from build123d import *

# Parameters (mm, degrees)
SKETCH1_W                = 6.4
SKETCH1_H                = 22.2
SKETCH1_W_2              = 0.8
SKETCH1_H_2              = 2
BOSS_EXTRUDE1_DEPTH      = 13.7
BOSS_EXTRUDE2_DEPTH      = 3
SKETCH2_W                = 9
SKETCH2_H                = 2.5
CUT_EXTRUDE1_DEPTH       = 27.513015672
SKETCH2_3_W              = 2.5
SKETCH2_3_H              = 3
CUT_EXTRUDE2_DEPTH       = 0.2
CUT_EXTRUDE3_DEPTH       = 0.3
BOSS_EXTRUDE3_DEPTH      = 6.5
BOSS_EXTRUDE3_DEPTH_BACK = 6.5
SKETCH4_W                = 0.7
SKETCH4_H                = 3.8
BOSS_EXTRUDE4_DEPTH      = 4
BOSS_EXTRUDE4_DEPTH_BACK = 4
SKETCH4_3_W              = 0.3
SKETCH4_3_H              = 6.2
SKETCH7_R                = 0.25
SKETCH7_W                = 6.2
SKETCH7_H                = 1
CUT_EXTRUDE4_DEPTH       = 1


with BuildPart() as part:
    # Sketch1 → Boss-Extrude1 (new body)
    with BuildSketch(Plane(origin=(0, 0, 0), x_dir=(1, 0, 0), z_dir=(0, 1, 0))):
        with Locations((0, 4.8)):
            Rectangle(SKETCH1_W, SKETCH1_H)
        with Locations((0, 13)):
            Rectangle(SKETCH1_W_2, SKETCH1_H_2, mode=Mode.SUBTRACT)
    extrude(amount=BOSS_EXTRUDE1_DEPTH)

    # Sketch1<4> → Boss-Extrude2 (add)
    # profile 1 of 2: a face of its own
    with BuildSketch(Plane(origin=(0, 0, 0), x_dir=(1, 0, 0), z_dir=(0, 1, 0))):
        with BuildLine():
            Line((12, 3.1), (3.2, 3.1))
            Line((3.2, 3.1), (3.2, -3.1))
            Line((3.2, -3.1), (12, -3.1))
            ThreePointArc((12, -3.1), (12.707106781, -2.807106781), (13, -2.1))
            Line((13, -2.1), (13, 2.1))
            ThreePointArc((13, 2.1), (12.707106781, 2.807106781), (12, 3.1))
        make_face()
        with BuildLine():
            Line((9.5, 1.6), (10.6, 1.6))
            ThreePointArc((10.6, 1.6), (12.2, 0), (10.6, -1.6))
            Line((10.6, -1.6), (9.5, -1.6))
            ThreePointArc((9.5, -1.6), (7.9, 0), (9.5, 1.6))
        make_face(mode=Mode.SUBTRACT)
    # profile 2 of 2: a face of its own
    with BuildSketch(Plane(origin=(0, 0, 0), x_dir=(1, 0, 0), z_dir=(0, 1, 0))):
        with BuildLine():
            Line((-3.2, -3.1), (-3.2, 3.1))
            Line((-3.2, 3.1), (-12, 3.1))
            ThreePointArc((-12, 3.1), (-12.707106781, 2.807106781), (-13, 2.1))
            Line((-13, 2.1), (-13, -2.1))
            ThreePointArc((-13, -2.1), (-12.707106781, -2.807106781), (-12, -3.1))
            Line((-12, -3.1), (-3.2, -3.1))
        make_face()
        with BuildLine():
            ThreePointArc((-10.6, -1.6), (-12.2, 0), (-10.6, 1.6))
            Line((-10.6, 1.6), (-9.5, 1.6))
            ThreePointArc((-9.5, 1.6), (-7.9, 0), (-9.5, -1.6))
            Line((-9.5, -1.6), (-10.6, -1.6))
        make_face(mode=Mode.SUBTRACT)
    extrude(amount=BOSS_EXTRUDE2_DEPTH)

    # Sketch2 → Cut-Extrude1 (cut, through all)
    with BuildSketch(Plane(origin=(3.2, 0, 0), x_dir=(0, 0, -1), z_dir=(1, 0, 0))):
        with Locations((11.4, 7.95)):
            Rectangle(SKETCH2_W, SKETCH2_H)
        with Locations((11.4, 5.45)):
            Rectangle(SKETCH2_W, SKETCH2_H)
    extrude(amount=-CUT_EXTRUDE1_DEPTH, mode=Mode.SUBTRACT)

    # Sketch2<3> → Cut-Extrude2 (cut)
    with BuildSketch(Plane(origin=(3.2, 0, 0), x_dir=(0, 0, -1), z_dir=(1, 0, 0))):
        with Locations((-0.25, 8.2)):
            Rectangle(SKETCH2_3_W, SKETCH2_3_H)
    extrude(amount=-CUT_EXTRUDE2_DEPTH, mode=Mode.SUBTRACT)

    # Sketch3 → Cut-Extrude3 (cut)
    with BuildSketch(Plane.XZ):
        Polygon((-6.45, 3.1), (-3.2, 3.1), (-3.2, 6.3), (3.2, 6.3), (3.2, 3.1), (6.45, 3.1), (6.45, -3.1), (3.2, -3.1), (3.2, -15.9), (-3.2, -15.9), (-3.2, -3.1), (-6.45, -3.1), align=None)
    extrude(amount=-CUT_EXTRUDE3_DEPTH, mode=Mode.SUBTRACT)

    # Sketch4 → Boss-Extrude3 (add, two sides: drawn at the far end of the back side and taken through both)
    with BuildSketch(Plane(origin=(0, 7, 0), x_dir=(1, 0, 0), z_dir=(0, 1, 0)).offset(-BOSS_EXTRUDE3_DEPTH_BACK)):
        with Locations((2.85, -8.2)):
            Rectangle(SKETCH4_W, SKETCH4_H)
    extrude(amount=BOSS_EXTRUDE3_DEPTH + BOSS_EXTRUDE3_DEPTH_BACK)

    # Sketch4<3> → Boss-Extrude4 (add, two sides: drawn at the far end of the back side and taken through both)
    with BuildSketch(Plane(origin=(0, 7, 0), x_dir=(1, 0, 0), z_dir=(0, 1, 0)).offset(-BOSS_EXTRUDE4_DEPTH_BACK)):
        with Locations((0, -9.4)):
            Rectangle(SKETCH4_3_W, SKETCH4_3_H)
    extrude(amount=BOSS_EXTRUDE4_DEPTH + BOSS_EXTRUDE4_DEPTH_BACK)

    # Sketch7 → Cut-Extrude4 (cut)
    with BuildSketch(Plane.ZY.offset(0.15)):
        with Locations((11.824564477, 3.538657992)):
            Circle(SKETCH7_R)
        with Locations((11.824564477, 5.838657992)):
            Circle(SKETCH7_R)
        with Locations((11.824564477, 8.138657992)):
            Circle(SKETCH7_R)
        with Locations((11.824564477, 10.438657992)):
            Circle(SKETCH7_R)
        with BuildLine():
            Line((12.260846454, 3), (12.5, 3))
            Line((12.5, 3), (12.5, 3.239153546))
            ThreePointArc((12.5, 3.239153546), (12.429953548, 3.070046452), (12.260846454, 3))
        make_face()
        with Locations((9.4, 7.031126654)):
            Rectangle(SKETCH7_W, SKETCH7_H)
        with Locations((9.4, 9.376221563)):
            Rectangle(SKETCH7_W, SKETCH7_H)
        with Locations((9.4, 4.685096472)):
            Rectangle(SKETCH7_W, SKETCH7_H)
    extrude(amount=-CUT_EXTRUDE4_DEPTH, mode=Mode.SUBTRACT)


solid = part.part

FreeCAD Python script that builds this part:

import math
import FreeCAD as App
import Part
import Sketcher

V = App.Vector


def add_polygon(sketch, points):
    """Adds a closed chain of lines whose ends are joined by coincident constraints."""
    first, n = sketch.GeometryCount, len(points)
    for a, b in zip(points, points[1:] + points[:1]):
        sketch.addGeometry(Part.LineSegment(App.Vector(*a, 0), App.Vector(*b, 0)), False)
    for i in range(n):
        sketch.addConstraint(Sketcher.Constraint("Coincident", first + i, 2, first + (i + 1) % n, 1))

doc = App.newDocument("Part")
body = doc.addObject("PartDesign::Body", "Body")

sketch1 = body.newObject("Sketcher::SketchObject", "Sketch")
sketch1.AttachmentSupport = (doc.getObject("XZ_Plane"), [""])
sketch1.MapMode = "FlatFace"
add_polygon(sketch1, [(-3.2, -15.9), (-3.2, 6.3), (3.2, 6.3), (3.2, -15.9)])
add_polygon(sketch1, [(0.4, -12), (-0.4, -12), (-0.4, -14), (0.4, -14)])
sketch1.addConstraint(Sketcher.Constraint("Vertical", 0))
sketch1.addConstraint(Sketcher.Constraint("Horizontal", 1))
sketch1.addConstraint(Sketcher.Constraint("Vertical", 2))
sketch1.addConstraint(Sketcher.Constraint("Horizontal", 3))
sketch1.addConstraint(Sketcher.Constraint("Horizontal", 4))
sketch1.addConstraint(Sketcher.Constraint("Vertical", 5))
sketch1.addConstraint(Sketcher.Constraint("Horizontal", 6))
sketch1.addConstraint(Sketcher.Constraint("Vertical", 7))
sketch1.addConstraint(Sketcher.Constraint("DistanceY", 5, 2, 5, 1, 2.0))
sketch1.addConstraint(Sketcher.Constraint("DistanceX", 1, 1, 1, 2, 6.4))
sketch1.addConstraint(Sketcher.Constraint("DistanceX", 4, 2, 4, 1, 0.8))
sketch1.addConstraint(Sketcher.Constraint("DistanceY", 0, 1, 0, 2, 22.2))
sketch1.addConstraint(Sketcher.Constraint("DistanceY", 4, 2, -1, 1, 12.0))
sketch1.addConstraint(Sketcher.Constraint("DistanceX", 0, 2, -1, 1, 3.2))
sketch1.addConstraint(Sketcher.Constraint("DistanceY", -1, 1, 0, 2, 6.3))
sketch1.addConstraint(Sketcher.Constraint("DistanceX", 4, 2, -1, 1, 0.4))
pad1 = body.newObject("PartDesign::Pad", "Pad")
pad1.Profile = sketch1
pad1.Length = 13.7
pad1.Reversed = True

sketch2 = body.newObject("Sketcher::SketchObject", "Sketch001")
sketch2.AttachmentSupport = (doc.getObject("XZ_Plane"), [""])
sketch2.MapMode = "FlatFace"
sketch2.addGeometry(Part.LineSegment(V(12, -3.1, 0), V(3.2, -3.1, 0)), False)
sketch2.addGeometry(Part.LineSegment(V(3.2, -3.1, 0), V(3.2, 3.1, 0)), False)
sketch2.addGeometry(Part.LineSegment(V(3.2, 3.1, 0), V(12, 3.1, 0)), False)
sketch2.addGeometry(Part.ArcOfCircle(Part.Circle(V(12, 2.1, 0), V(0, 0, 1), 1), math.radians(0), math.radians(90)), False)
sketch2.addGeometry(Part.LineSegment(V(13, 2.1, 0), V(13, -2.1, 0)), False)
sketch2.addGeometry(Part.ArcOfCircle(Part.Circle(V(12, -2.1, 0), V(0, 0, 1), 1), math.radians(-90), math.radians(0)), False)
sketch2.addGeometry(Part.ArcOfCircle(Part.Circle(V(9.5, 0, 0), V(0, 0, 1), 1.6), math.radians(90), math.radians(270)), False)
sketch2.addGeometry(Part.LineSegment(V(9.5, -1.6, 0), V(10.6, -1.6, 0)), False)
sketch2.addGeometry(Part.ArcOfCircle(Part.Circle(V(10.6, 0, 0), V(0, 0, 1), 1.6), math.radians(-90), math.radians(90)), False)
sketch2.addGeometry(Part.LineSegment(V(10.6, 1.6, 0), V(9.5, 1.6, 0)), False)
sketch2.addGeometry(Part.LineSegment(V(-3.2, 3.1, 0), V(-3.2, -3.1, 0)), False)
sketch2.addGeometry(Part.LineSegment(V(-3.2, -3.1, 0), V(-12, -3.1, 0)), False)
sketch2.addGeometry(Part.ArcOfCircle(Part.Circle(V(-12, -2.1, 0), V(0, 0, 1), 1), math.radians(-180), math.radians(-90)), False)
sketch2.addGeometry(Part.LineSegment(V(-13, -2.1, 0), V(-13, 2.1, 0)), False)
sketch2.addGeometry(Part.ArcOfCircle(Part.Circle(V(-12, 2.1, 0), V(0, 0, 1), 1), math.radians(90), math.radians(180)), False)
sketch2.addGeometry(Part.LineSegment(V(-12, 3.1, 0), V(-3.2, 3.1, 0)), False)
sketch2.addGeometry(Part.LineSegment(V(-9.5, 1.6, 0), V(-10.6, 1.6, 0)), False)
sketch2.addGeometry(Part.ArcOfCircle(Part.Circle(V(-10.6, 0, 0), V(0, 0, 1), 1.6), math.radians(90), math.radians(270)), False)
sketch2.addGeometry(Part.LineSegment(V(-10.6, -1.6, 0), V(-9.5, -1.6, 0)), False)
sketch2.addGeometry(Part.ArcOfCircle(Part.Circle(V(-9.5, 0, 0), V(0, 0, 1), 1.6), math.radians(-90), math.radians(90)), False)
sketch2.addConstraint(Sketcher.Constraint("Coincident", 0, 2, 1, 1))
sketch2.addConstraint(Sketcher.Constraint("Coincident", 1, 2, 2, 1))
sketch2.addConstraint(Sketcher.Constraint("Tangent", 2, 2, 3, 2))
sketch2.addConstraint(Sketcher.Constraint("Tangent", 3, 1, 4, 1))
sketch2.addConstraint(Sketcher.Constraint("Tangent", 4, 2, 5, 2))
sketch2.addConstraint(Sketcher.Constraint("Tangent", 5, 1, 0, 1))
sketch2.addConstraint(Sketcher.Constraint("Tangent", 6, 2, 7, 1))
sketch2.addConstraint(Sketcher.Constraint("Tangent", 7, 2, 8, 1))
sketch2.addConstraint(Sketcher.Constraint("Tangent", 8, 2, 9, 1))
sketch2.addConstraint(Sketcher.Constraint("Tangent", 9, 2, 6, 1))
sketch2.addConstraint(Sketcher.Constraint("Coincident", 10, 2, 11, 1))
sketch2.addConstraint(Sketcher.Constraint("Tangent", 11, 2, 12, 2))
sketch2.addConstraint(Sketcher.Constraint("Tangent", 12, 1, 13, 1))
sketch2.addConstraint(Sketcher.Constraint("Tangent", 13, 2, 14, 2))
sketch2.addConstraint(Sketcher.Constraint("Tangent", 14, 1, 15, 1))
sketch2.addConstraint(Sketcher.Constraint("Coincident", 15, 2, 10, 1))
sketch2.addConstraint(Sketcher.Constraint("Tangent", 16, 2, 17, 1))
sketch2.addConstraint(Sketcher.Constraint("Tangent", 17, 2, 18, 1))
sketch2.addConstraint(Sketcher.Constraint("Tangent", 18, 2, 19, 1))
sketch2.addConstraint(Sketcher.Constraint("Tangent", 19, 2, 16, 1))
sketch2.addConstraint(Sketcher.Constraint("Horizontal", 0))
sketch2.addConstraint(Sketcher.Constraint("Vertical", 1))
sketch2.addConstraint(Sketcher.Constraint("Horizontal", 2))
sketch2.addConstraint(Sketcher.Constraint("Vertical", 4))
sketch2.addConstraint(Sketcher.Constraint("Horizontal", 7))
sketch2.addConstraint(Sketcher.Constraint("Horizontal", 9))
sketch2.addConstraint(Sketcher.Constraint("Vertical", 10))
sketch2.addConstraint(Sketcher.Constraint("Horizontal", 11))
sketch2.addConstraint(Sketcher.Constraint("Vertical", 13))
sketch2.addConstraint(Sketcher.Constraint("Horizontal", 15))
sketch2.addConstraint(Sketcher.Constraint("Horizontal", 16))
sketch2.addConstraint(Sketcher.Constraint("Horizontal", 18))
sketch2.addConstraint(Sketcher.Constraint("Equal", 3, 5))
sketch2.addConstraint(Sketcher.Constraint("Equal", 5, 12))
sketch2.addConstraint(Sketcher.Constraint("Equal", 12, 14))
sketch2.addConstraint(Sketcher.Constraint("Equal", 8, 17))
sketch2.addConstraint(Sketcher.Constraint("Symmetric", 3, 3, 12, 3, -1, 1))
sketch2.addConstraint(Sketcher.Constraint("Symmetric", 8, 3, 17, 3, -1, 1))
sketch2.addConstraint(Sketcher.Constraint("Symmetric", 0, 2, 15, 2, -1, 1))
sketch2.addConstraint(Sketcher.Constraint("Symmetric", 6, 3, 19, 3, -2))
sketch2.addConstraint(Sketcher.Constraint("Horizontal", 5, 3, 12, 3))
sketch2.addConstraint(Sketcher.Constraint("Radius", 3, 1.0))
sketch2.addConstraint(Sketcher.Constraint("Radius", 6, 1.6))
sketch2.addConstraint(Sketcher.Constraint("DistanceX", 0, 2, 0, 1, 8.8))
sketch2.addConstraint(Sketcher.Constraint("DistanceX", 7, 1, 7, 2, 1.1))
sketch2.addConstraint(Sketcher.Constraint("DistanceY", 1, 1, 1, 2, 6.2))
sketch2.addConstraint(Sketcher.Constraint("DistanceX", -1, 1, 3, 3, 12.0))
sketch2.addConstraint(Sketcher.Constraint("DistanceX", 19, 3, 6, 3, 19.0))
pad2 = body.newObject("PartDesign::Pad", "Pad001")
pad2.Profile = sketch2
pad2.Length = 3
pad2.Reversed = True

sketch3 = body.newObject("Sketcher::SketchObject", "Sketch002")
sketch3.AttachmentSupport = (doc.getObject("YZ_Plane"), [""])
sketch3.MapMode = "FlatFace"
sketch3.AttachmentOffset = App.Placement(V(0, 0, 3.2), App.Rotation())
add_polygon(sketch3, [(9.2, -6.9), (4.2, -6.9), (4.2, -15.9), (9.2, -15.9)])
sketch3.addConstraint(Sketcher.Constraint("Horizontal", 0))
sketch3.addConstraint(Sketcher.Constraint("Vertical", 1))
sketch3.addConstraint(Sketcher.Constraint("Horizontal", 2))
sketch3.addConstraint(Sketcher.Constraint("Vertical", 3))
sketch3.addConstraint(Sketcher.Constraint("DistanceX", 0, 2, 0, 1, 5.0))
sketch3.addConstraint(Sketcher.Constraint("DistanceY", 1, 2, 1, 1, 9.0))
sketch3.addConstraint(Sketcher.Constraint("DistanceX", -1, 1, 0, 2, 4.2))
sketch3.addConstraint(Sketcher.Constraint("DistanceY", 0, 2, -1, 1, 6.9))
pocket1 = body.newObject("PartDesign::Pocket", "Pocket")
pocket1.Profile = sketch3
pocket1.Type = "ThroughAll"

sketch4 = body.newObject("Sketcher::SketchObject", "Sketch003")
sketch4.AttachmentSupport = (doc.getObject("YZ_Plane"), [""])
sketch4.MapMode = "FlatFace"
sketch4.AttachmentOffset = App.Placement(V(0, 0, 3.2), App.Rotation())
add_polygon(sketch4, [(9.7, 1.5), (6.7, 1.5), (6.7, -1), (9.7, -1)])
sketch4.addConstraint(Sketcher.Constraint("Horizontal", 0))
sketch4.addConstraint(Sketcher.Constraint("Vertical", 1))
sketch4.addConstraint(Sketcher.Constraint("Horizontal", 2))
sketch4.addConstraint(Sketcher.Constraint("Vertical", 3))
sketch4.addConstraint(Sketcher.Constraint("DistanceX", 0, 2, 0, 1, 3.0))
sketch4.addConstraint(Sketcher.Constraint("DistanceY", 1, 2, 1, 1, 2.5))
sketch4.addConstraint(Sketcher.Constraint("DistanceY", 1, 2, -1, 1, 1.0))
sketch4.addConstraint(Sketcher.Constraint("DistanceX", -1, 1, 0, 2, 6.7))
pocket2 = body.newObject("PartDesign::Pocket", "Pocket001")
pocket2.Profile = sketch4
pocket2.Length = 0.2

sketch5 = body.newObject("Sketcher::SketchObject", "Sketch004")
sketch5.AttachmentSupport = (doc.getObject("XZ_Plane"), [""])
sketch5.MapMode = "FlatFace"
add_polygon(sketch5, [(-3.2, 3.1), (-6.45, 3.1), (-6.45, -3.1), (-3.2, -3.1), (-3.2, -15.9), (3.2, -15.9), (3.2, -3.1), (6.45, -3.1), (6.45, 3.1), (3.2, 3.1), (3.2, 6.3), (-3.2, 6.3)])
sketch5.addConstraint(Sketcher.Constraint("Horizontal", 0))
sketch5.addConstraint(Sketcher.Constraint("Vertical", 1))
sketch5.addConstraint(Sketcher.Constraint("Horizontal", 2))
sketch5.addConstraint(Sketcher.Constraint("Vertical", 3))
sketch5.addConstraint(Sketcher.Constraint("Horizontal", 4))
sketch5.addConstraint(Sketcher.Constraint("Vertical", 5))
sketch5.addConstraint(Sketcher.Constraint("Horizontal", 6))
sketch5.addConstraint(Sketcher.Constraint("Vertical", 7))
sketch5.addConstraint(Sketcher.Constraint("Horizontal", 8))
sketch5.addConstraint(Sketcher.Constraint("Vertical", 9))
sketch5.addConstraint(Sketcher.Constraint("Horizontal", 10))
sketch5.addConstraint(Sketcher.Constraint("Vertical", 11))
sketch5.addConstraint(Sketcher.Constraint("Symmetric", 0, 2, 6, 2, -1, 1))
sketch5.addConstraint(Sketcher.Constraint("Symmetric", 2, 2, 8, 2, -1, 1))
sketch5.addConstraint(Sketcher.Constraint("Symmetric", 2, 2, 5, 2, -2))
sketch5.addConstraint(Sketcher.Constraint("Vertical", 3, 2, 10, 2))
sketch5.addConstraint(Sketcher.Constraint("DistanceX", 4, 1, 4, 2, 6.4))
sketch5.addConstraint(Sketcher.Constraint("DistanceY", 1, 2, 1, 1, 6.2))
sketch5.addConstraint(Sketcher.Constraint("DistanceY", 3, 2, 3, 1, 12.8))
sketch5.addConstraint(Sketcher.Constraint("DistanceY", 9, 1, 9, 2, 3.2))
sketch5.addConstraint(Sketcher.Constraint("DistanceX", 0, 2, 0, 1, 3.25))
pocket3 = body.newObject("PartDesign::Pocket", "Pocket002")
pocket3.Profile = sketch5
pocket3.Length = 0.3

sketch6 = body.newObject("Sketcher::SketchObject", "Sketch005")
sketch6.AttachmentSupport = (doc.getObject("XZ_Plane"), [""])
sketch6.MapMode = "FlatFace"
sketch6.AttachmentOffset = App.Placement(V(0, 0, -7), App.Rotation())
add_polygon(sketch6, [(2.5, 6.3), (2.5, 10.1), (3.2, 10.1), (3.2, 6.3)])
sketch6.addConstraint(Sketcher.Constraint("Vertical", 0))
sketch6.addConstraint(Sketcher.Constraint("Horizontal", 1))
sketch6.addConstraint(Sketcher.Constraint("Vertical", 2))
sketch6.addConstraint(Sketcher.Constraint("Horizontal", 3))
sketch6.addConstraint(Sketcher.Constraint("DistanceX", 1, 1, 1, 2, 0.7))
sketch6.addConstraint(Sketcher.Constraint("DistanceY", 0, 1, 0, 2, 3.8))
sketch6.addConstraint(Sketcher.Constraint("DistanceX", -1, 1, 0, 2, 2.5))
sketch6.addConstraint(Sketcher.Constraint("DistanceY", -1, 1, 0, 2, 10.1))
pad3 = body.newObject("PartDesign::Pad", "Pad002")
pad3.Profile = sketch6
pad3.Type = "TwoLengths"
pad3.Length = 6.5
pad3.Length2 = 6.5
pad3.Reversed = True

sketch7 = body.newObject("Sketcher::SketchObject", "Sketch006")
sketch7.AttachmentSupport = (doc.getObject("XZ_Plane"), [""])
sketch7.MapMode = "FlatFace"
sketch7.AttachmentOffset = App.Placement(V(0, 0, -7), App.Rotation())
add_polygon(sketch7, [(-0.15, 6.3), (-0.15, 12.5), (0.15, 12.5), (0.15, 6.3)])
sketch7.addConstraint(Sketcher.Constraint("Vertical", 0))
sketch7.addConstraint(Sketcher.Constraint("Horizontal", 1))
sketch7.addConstraint(Sketcher.Constraint("Vertical", 2))
sketch7.addConstraint(Sketcher.Constraint("Horizontal", 3))
sketch7.addConstraint(Sketcher.Constraint("DistanceX", 1, 1, 1, 2, 0.3))
sketch7.addConstraint(Sketcher.Constraint("DistanceY", 0, 1, 0, 2, 6.2))
sketch7.addConstraint(Sketcher.Constraint("DistanceY", -1, 1, 0, 2, 12.5))
sketch7.addConstraint(Sketcher.Constraint("DistanceX", 0, 2, -1, 1, 0.15))
pad4 = body.newObject("PartDesign::Pad", "Pad003")
pad4.Profile = sketch7
pad4.Type = "TwoLengths"
pad4.Length = 4
pad4.Length2 = 4
pad4.Reversed = True

sketch8 = body.newObject("Sketcher::SketchObject", "Sketch007")
sketch8.AttachmentSupport = (doc.getObject("YZ_Plane"), [""])
sketch8.MapMode = "FlatFace"
sketch8.AttachmentOffset = App.Placement(V(0, 0, -0.15), App.Rotation())
sketch8.addGeometry(Part.Circle(V(3.538658, 11.824564, 0), V(0, 0, 1), 0.25), False)
sketch8.addGeometry(Part.Circle(V(5.838658, 11.824564, 0), V(0, 0, 1), 0.25), False)
sketch8.addGeometry(Part.Circle(V(8.138658, 11.824564, 0), V(0, 0, 1), 0.25), False)
sketch8.addGeometry(Part.Circle(V(10.438658, 11.824564, 0), V(0, 0, 1), 0.25), False)
sketch8.addGeometry(Part.LineSegment(V(3, 12.260846, 0), V(3, 12.5, 0)), False)
sketch8.addGeometry(Part.LineSegment(V(3, 12.5, 0), V(3.239154, 12.5, 0)), False)
sketch8.addGeometry(Part.ArcOfCircle(Part.Circle(V(3.239154, 12.260846, 0), V(0, 0, 1), 0.239154), math.radians(90), math.radians(180)), False)
add_polygon(sketch8, [(7.531127, 6.3), (6.531127, 6.3), (6.531127, 12.5), (7.531127, 12.5)])
add_polygon(sketch8, [(9.876222, 6.3), (8.876222, 6.3), (8.876222, 12.5), (9.876222, 12.5)])
add_polygon(sketch8, [(5.185096, 6.3), (4.185096, 6.3), (4.185096, 12.5), (5.185096, 12.5)])
sketch8.addConstraint(Sketcher.Constraint("Coincident", 4, 2, 5, 1))
sketch8.addConstraint(Sketcher.Constraint("Tangent", 5, 2, 6, 1))
sketch8.addConstraint(Sketcher.Constraint("Tangent", 6, 2, 4, 1))
sketch8.addConstraint(Sketcher.Constraint("Vertical", 4))
sketch8.addConstraint(Sketcher.Constraint("Horizontal", 5))
sketch8.addConstraint(Sketcher.Constraint("Horizontal", 7))
sketch8.addConstraint(Sketcher.Constraint("Vertical", 8))
sketch8.addConstraint(Sketcher.Constraint("Horizontal", 9))
sketch8.addConstraint(Sketcher.Constraint("Vertical", 10))
sketch8.addConstraint(Sketcher.Constraint("Horizontal", 11))
sketch8.addConstraint(Sketcher.Constraint("Vertical", 12))
sketch8.addConstraint(Sketcher.Constraint("Horizontal", 13))
sketch8.addConstraint(Sketcher.Constraint("Vertical", 14))
sketch8.addConstraint(Sketcher.Constraint("Horizontal", 15))
sketch8.addConstraint(Sketcher.Constraint("Vertical", 16))
sketch8.addConstraint(Sketcher.Constraint("Horizontal", 17))
sketch8.addConstraint(Sketcher.Constraint("Vertical", 18))
sketch8.addConstraint(Sketcher.Constraint("Equal", 0, 1))
sketch8.addConstraint(Sketcher.Constraint("Equal", 1, 2))
sketch8.addConstraint(Sketcher.Constraint("Equal", 2, 3))
sketch8.addConstraint(Sketcher.Constraint("Horizontal", 0, 3, 1, 3))
sketch8.addConstraint(Sketcher.Constraint("Horizontal", 1, 3, 2, 3))
sketch8.addConstraint(Sketcher.Constraint("Horizontal", 2, 3, 3, 3))
sketch8.addConstraint(Sketcher.Constraint("Horizontal", 5, 2, 8, 2))
sketch8.addConstraint(Sketcher.Constraint("Horizontal", 10, 2, 11, 2))
sketch8.addConstraint(Sketcher.Constraint("Horizontal", 9, 2, 12, 2))
sketch8.addConstraint(Sketcher.Constraint("Horizontal", 14, 2, 15, 2))
sketch8.addConstraint(Sketcher.Constraint("Horizontal", 13, 2, 16, 2))
sketch8.addConstraint(Sketcher.Constraint("Equal", 9, 11))
sketch8.addConstraint(Sketcher.Constraint("Equal", 13, 15))
sketch8.addConstraint(Sketcher.Constraint("Diameter", 0, 0.5))
sketch8.addConstraint(Sketcher.Constraint("DistanceX", 7, 2, 7, 1, 1.0))
sketch8.addConstraint(Sketcher.Constraint("DistanceY", 8, 1, 8, 2, 6.2))
sketch8.addConstraint(Sketcher.Constraint("DistanceX", -1, 1, 4, 2, 3.0))
sketch8.addConstraint(Sketcher.Constraint("DistanceY", -1, 1, 4, 2, 12.5))
sketch8.addConstraint(Sketcher.Constraint("DistanceX", 0, 3, 1, 3, 2.3))
sketch8.addConstraint(Sketcher.Constraint("DistanceX", 1, 3, 2, 3, 2.3))
sketch8.addConstraint(Sketcher.Constraint("DistanceX", 2, 3, 3, 3, 2.3))
sketch8.addConstraint(Sketcher.Constraint("Radius", 6, 0.239154))
sketch8.addConstraint(Sketcher.Constraint("DistanceX", -1, 1, 11, 2, 8.876222))
sketch8.addConstraint(Sketcher.Constraint("DistanceY", 0, 3, 6, 3, 0.436282))
sketch8.addConstraint(Sketcher.Constraint("DistanceX", 1, 3, 7, 2, 0.692469))
sketch8.addConstraint(Sketcher.Constraint("DistanceX", 15, 2, 7, 2, 2.34603))
sketch8.addConstraint(Sketcher.Constraint("DistanceX", -1, 1, 0, 3, 3.538658))
pocket4 = body.newObject("PartDesign::Pocket", "Pocket003")
pocket4.Profile = sketch8
pocket4.Length = 1
pocket4.Reversed = True

doc.recompute()
